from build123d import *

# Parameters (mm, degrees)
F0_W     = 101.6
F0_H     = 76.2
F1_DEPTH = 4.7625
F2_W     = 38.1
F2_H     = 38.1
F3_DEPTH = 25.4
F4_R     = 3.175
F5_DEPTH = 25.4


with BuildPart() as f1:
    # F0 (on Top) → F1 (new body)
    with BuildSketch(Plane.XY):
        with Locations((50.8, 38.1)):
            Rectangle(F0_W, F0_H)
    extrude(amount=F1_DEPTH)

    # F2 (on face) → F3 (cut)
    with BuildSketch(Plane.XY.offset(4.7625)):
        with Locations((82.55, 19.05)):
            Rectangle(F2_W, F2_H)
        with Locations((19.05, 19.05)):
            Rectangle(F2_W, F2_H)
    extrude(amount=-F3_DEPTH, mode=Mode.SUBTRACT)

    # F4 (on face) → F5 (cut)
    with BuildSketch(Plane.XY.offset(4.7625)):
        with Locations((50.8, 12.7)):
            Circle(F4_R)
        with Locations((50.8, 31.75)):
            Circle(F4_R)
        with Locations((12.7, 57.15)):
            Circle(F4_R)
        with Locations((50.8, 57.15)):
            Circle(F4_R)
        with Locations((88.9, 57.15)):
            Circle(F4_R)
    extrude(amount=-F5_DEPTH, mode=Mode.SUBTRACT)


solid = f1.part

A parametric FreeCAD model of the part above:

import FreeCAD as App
import Part
import Sketcher

V = App.Vector
Q = App.Units.Quantity


def add_polygon(sketch, points):
    """Adds a closed chain of lines whose ends are joined by coincident constraints."""
    first, n = sketch.GeometryCount, len(points)
    for a, b in zip(points, points[1:] + points[:1]):
        sketch.addGeometry(Part.LineSegment(App.Vector(*a, 0), App.Vector(*b, 0)), False)
    for i in range(n):
        sketch.addConstraint(Sketcher.Constraint("Coincident", first + i, 2, first + (i + 1) % n, 1))

doc = App.newDocument("Part")
params = doc.addObject("Spreadsheet::Sheet", "Params")
for row, (alias, value) in enumerate([
    ("sketch1_width", "4 in"),
    ("sketch1_height", "3 in"),
    ("pad1_length", "0.1875 in"),
    ("sketch2_width", "1.5 in"),
    ("pocket1_length", "1 in"),
    ("sketch3_diameter", "0.25 in"),
    ("pocket2_length", "1 in"),
], start=1):
    params.set(f"A{row}", alias)
    params.set(f"B{row}", "=" + value)
    params.setAlias(f"B{row}", alias)

body = doc.addObject("PartDesign::Body", "Body")

sketch1 = body.newObject("Sketcher::SketchObject", "Sketch")
sketch1.AttachmentSupport = (doc.getObject("XY_Plane"), [""])
sketch1.MapMode = "FlatFace"
add_polygon(sketch1, [(0, 76), (0, 0), (102, 0), (102, 76)])
sketch1.addConstraint([
    Sketcher.Constraint("Vertical", 0),
    Sketcher.Constraint("Horizontal", 1),
    Sketcher.Constraint("Vertical", 2),
    Sketcher.Constraint("Horizontal", 3),
    Sketcher.Constraint("Coincident", 0, 2, -1, 1),
    Sketcher.Constraint("DistanceX", 1, 1, 1, 2, Q("4 in")),
    Sketcher.Constraint("DistanceY", 0, 2, 0, 1, Q("3 in")),
])
sketch1.setExpression("Constraints[9]", "Params.sketch1_width")
sketch1.setExpression("Constraints[10]", "Params.sketch1_height")
pad1 = body.newObject("PartDesign::Pad", "Pad")
pad1.Profile = sketch1
pad1.setExpression("Length", "Params.pad1_length")

sketch2 = body.newObject("Sketcher::SketchObject", "Sketch001")
sketch2.AttachmentSupport = (doc.getObject("XY_Plane"), [""])
sketch2.MapMode = "FlatFace"
sketch2.AttachmentOffset = App.Placement(V(0, 0, 0.1875 * 25.4), App.Rotation())
add_polygon(sketch2, [(64, 38), (64, 0), (102, 0), (102, 38)])
add_polygon(sketch2, [(0, 38), (0, 0), (38, 0), (38, 38)])
sketch2.addConstraint([
    Sketcher.Constraint("Vertical", 0),
    Sketcher.Constraint("Horizontal", 1),
    Sketcher.Constraint("Vertical", 2),
    Sketcher.Constraint("Horizontal", 3),
    Sketcher.Constraint("Vertical", 4),
    Sketcher.Constraint("Horizontal", 5),
    Sketcher.Constraint("Vertical", 6),
    Sketcher.Constraint("Horizontal", 7),
    Sketcher.Constraint("Coincident", 4, 2, -1, 1),
    Sketcher.Constraint("PointOnObject", 0, 2, -1),
    Sketcher.Constraint("Horizontal", 3, 2, 6, 2),
    Sketcher.Constraint("Equal", 3, 5),
    Sketcher.Constraint("Equal", 7, 0),
    Sketcher.Constraint("DistanceX", 1, 1, 1, 2, Q("1.5 in")),
    Sketcher.Constraint("DistanceX", -1, 1, 1, 2, Q("4 in")),
])
sketch2.setExpression("Constraints[21]", "Params.sketch2_width")
pocket1 = body.newObject("PartDesign::Pocket", "Pocket")
pocket1.Profile = sketch2
pocket1.setExpression("Length", "Params.pocket1_length")

sketch3 = body.newObject("Sketcher::SketchObject", "Sketch002")
sketch3.AttachmentSupport = (doc.getObject("XY_Plane"), [""])
sketch3.MapMode = "FlatFace"
sketch3.AttachmentOffset = App.Placement(V(0, 0, 0.1875 * 25.4), App.Rotation())
sketch3.addGeometry([
    Part.Circle(V(50.8, 12.7, 0), V(0, 0, 1), 3.2),
    Part.Circle(V(50.8, 31.8, 0), V(0, 0, 1), 3.2),
    Part.Circle(V(12.7, 57.1, 0), V(0, 0, 1), 3.2),
    Part.Circle(V(50.8, 57.1, 0), V(0, 0, 1), 3.2),
    Part.Circle(V(88.9, 57.1, 0), V(0, 0, 1), 3.2),
], False)
sketch3.addConstraint([
    Sketcher.Constraint("Equal", 0, 1),
    Sketcher.Constraint("Equal", 1, 2),
    Sketcher.Constraint("Equal", 2, 3),
    Sketcher.Constraint("Equal", 3, 4),
    Sketcher.Constraint("Horizontal", 2, 3, 3, 3),
    Sketcher.Constraint("Horizontal", 3, 3, 4, 3),
    Sketcher.Constraint("Vertical", 0, 3, 1, 3),
    Sketcher.Constraint("Vertical", 1, 3, 3, 3),
    Sketcher.Constraint("Diameter", 0, Q("0.25 in")),
    Sketcher.Constraint("DistanceX", -1, 1, 0, 3, Q("2 in")),
    Sketcher.Constraint("DistanceY", 1, 3, 2, 3, Q("1 in")),
    Sketcher.Constraint("DistanceX", 2, 3, 4, 3, Q("3 in")),
    Sketcher.Constraint("DistanceY", -1, 1, 0, 3, Q("0.5 in")),
    Sketcher.Constraint("DistanceX", -1, 1, 2, 3, Q("0.5 in")),
    Sketcher.Constraint("DistanceY", -1, 1, 1, 3, Q("1.25 in")),
])
sketch3.setExpression("Constraints[8]", "Params.sketch3_diameter")
pocket2 = body.newObject("PartDesign::Pocket", "Pocket001")
pocket2.Profile = sketch3
pocket2.setExpression("Length", "Params.pocket2_length")

doc.recompute()
